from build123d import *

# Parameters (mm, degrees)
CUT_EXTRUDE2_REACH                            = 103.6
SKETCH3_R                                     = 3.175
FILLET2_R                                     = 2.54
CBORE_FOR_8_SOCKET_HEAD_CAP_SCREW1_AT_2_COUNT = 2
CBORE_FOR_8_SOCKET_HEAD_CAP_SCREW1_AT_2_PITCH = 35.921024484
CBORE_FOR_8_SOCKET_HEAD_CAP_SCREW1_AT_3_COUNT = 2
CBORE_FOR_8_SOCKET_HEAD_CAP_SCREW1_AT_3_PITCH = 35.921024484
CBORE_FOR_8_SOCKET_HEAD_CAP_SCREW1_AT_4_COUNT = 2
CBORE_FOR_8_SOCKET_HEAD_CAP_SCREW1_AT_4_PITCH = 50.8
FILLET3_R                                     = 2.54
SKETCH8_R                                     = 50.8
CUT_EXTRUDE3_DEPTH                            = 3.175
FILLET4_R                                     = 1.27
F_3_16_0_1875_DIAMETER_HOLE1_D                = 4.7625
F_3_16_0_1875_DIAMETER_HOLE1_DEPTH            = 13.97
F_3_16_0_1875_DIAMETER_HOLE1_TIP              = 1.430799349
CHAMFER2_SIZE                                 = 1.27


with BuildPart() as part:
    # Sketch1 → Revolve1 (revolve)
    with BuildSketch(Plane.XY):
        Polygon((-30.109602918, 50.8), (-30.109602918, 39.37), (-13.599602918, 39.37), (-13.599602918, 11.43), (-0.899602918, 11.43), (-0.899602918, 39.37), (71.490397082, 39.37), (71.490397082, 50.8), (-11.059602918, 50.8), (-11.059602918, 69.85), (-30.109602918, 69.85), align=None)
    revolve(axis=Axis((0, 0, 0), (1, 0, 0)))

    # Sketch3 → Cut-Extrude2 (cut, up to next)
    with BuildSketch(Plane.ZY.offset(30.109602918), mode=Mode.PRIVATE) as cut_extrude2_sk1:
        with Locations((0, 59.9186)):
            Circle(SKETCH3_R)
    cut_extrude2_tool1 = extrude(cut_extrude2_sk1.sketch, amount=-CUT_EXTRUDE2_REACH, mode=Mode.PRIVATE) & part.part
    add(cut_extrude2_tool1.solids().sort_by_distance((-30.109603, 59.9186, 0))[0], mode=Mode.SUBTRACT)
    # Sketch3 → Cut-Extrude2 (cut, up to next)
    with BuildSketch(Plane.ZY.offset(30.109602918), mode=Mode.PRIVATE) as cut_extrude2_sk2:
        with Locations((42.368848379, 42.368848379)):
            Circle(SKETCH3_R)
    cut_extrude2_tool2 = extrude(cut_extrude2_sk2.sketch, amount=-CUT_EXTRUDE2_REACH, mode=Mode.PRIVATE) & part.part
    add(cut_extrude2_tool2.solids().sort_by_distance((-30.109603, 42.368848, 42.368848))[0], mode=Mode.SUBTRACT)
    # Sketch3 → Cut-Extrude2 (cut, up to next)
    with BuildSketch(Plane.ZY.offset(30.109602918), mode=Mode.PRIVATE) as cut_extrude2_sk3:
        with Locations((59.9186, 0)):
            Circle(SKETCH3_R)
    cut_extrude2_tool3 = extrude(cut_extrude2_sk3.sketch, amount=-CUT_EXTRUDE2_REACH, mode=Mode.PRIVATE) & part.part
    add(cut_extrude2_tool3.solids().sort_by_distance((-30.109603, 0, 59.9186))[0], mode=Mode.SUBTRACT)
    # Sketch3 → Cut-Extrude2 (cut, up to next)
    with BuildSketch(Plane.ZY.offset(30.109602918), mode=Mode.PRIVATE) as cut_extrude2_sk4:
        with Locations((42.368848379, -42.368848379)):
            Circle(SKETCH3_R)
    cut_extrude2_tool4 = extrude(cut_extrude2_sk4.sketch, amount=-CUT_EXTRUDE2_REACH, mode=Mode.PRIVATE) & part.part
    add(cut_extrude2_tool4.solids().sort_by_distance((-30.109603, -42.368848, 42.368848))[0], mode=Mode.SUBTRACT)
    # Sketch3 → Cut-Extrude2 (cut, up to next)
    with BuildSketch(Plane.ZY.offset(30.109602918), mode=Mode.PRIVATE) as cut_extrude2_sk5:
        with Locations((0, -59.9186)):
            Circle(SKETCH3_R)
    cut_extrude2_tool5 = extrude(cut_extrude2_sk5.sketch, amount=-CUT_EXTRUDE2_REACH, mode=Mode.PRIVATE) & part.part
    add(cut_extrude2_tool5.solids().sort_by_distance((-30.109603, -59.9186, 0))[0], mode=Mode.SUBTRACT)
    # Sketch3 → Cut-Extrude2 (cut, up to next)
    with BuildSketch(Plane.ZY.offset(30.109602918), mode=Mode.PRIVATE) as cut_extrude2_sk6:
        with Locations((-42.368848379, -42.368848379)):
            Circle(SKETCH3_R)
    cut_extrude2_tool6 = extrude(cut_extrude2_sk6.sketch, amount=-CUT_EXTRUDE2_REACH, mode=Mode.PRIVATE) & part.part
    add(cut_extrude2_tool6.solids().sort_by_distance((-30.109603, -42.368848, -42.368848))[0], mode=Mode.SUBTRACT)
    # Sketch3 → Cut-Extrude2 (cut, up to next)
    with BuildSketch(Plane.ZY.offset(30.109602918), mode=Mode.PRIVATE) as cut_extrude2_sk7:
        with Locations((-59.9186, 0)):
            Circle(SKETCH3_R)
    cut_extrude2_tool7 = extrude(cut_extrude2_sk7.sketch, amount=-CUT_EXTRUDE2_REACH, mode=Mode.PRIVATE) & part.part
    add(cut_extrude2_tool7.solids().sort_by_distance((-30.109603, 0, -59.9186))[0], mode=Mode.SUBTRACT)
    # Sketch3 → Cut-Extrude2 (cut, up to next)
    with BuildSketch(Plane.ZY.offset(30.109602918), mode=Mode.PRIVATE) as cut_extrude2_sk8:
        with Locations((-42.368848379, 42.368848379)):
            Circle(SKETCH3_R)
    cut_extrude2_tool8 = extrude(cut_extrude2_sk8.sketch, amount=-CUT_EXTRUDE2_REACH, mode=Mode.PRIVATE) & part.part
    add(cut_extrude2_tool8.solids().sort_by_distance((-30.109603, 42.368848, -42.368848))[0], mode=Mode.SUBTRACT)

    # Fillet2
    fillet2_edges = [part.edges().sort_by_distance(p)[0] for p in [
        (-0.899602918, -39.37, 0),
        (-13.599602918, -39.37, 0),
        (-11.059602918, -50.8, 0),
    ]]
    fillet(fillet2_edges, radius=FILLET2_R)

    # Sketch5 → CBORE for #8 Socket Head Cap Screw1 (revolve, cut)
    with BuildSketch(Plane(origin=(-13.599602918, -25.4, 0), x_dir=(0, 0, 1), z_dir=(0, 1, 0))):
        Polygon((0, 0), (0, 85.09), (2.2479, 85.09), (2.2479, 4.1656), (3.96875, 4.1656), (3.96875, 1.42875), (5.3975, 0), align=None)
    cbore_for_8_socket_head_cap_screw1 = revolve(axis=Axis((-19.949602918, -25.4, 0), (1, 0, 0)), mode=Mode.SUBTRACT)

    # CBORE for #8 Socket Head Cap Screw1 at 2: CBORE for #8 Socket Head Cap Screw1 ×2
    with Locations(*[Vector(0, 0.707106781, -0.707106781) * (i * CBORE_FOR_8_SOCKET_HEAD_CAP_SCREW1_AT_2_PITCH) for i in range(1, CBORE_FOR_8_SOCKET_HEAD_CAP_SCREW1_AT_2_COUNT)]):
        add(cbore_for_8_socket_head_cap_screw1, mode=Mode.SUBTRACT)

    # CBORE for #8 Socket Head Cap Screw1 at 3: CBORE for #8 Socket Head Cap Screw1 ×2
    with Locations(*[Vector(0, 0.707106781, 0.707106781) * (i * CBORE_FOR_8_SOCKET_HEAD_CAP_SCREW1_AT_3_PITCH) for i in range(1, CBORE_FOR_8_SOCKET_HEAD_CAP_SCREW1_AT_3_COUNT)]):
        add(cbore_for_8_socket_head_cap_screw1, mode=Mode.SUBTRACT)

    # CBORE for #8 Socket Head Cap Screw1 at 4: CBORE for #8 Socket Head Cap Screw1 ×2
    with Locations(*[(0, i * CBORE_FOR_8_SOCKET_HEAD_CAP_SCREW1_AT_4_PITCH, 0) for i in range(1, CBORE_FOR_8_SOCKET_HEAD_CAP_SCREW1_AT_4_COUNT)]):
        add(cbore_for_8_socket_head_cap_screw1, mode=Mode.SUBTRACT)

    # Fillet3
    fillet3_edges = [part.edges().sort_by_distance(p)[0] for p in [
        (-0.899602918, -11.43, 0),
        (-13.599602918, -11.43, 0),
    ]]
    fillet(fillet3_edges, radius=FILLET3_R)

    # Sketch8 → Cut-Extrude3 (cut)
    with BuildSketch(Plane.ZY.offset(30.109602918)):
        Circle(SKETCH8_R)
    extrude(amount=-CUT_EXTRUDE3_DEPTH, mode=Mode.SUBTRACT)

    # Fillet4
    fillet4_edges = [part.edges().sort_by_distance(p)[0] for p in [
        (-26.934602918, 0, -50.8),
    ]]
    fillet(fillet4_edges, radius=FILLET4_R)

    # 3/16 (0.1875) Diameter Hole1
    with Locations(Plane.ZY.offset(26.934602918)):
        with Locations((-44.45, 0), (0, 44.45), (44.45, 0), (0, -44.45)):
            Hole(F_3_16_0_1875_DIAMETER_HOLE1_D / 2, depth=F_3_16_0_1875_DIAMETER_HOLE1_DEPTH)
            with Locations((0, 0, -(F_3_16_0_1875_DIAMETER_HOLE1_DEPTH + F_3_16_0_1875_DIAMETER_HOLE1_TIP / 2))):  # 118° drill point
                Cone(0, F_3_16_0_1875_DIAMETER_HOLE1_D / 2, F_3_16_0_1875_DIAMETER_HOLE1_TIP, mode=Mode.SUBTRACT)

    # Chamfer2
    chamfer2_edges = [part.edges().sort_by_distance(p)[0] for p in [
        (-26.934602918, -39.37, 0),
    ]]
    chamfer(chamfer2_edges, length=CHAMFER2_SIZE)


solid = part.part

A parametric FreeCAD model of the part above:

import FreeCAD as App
import Part
import Sketcher
Q = App.Units.Quantity


def edges_at(feature, points):
    """Names of the edges that pass closest to the given points."""
    edges = feature.Shape.Edges
    near = lambda p: min(range(len(edges)), key=lambda i: edges[i].distToShape(Part.Vertex(*p))[0])
    return sorted({f"Edge{near(p) + 1}" for p in points})

doc = App.newDocument("Part")
body = doc.addObject("PartDesign::Body", "Body")

# Sketch on XY plane
sketch1 = doc.addObject("Sketcher::SketchObject", "Sketch")
body.addObject(sketch1)
sketch1.AttachmentSupport = (doc.XY_Plane, [""])
sketch1.MapMode = "FlatFace"
sketch1.addGeometry([
    Part.LineSegment(App.Vector(-30.109603, 39.37, 0), App.Vector(-13.599603, 39.37, 0)),  # 0
    Part.LineSegment(App.Vector(-13.599603, 39.37, 0), App.Vector(-13.599603, 11.43, 0)),  # 1
    Part.LineSegment(App.Vector(-13.599603, 11.43, 0), App.Vector(-0.899603, 11.43, 0)),  # 2
    Part.LineSegment(App.Vector(-0.899603, 11.43, 0), App.Vector(-0.899603, 39.37, 0)),  # 3
    Part.LineSegment(App.Vector(-0.899603, 39.37, 0), App.Vector(71.490397, 39.37, 0)),  # 4
    Part.LineSegment(App.Vector(71.490397, 39.37, 0), App.Vector(71.490397, 50.8, 0)),  # 5
    Part.LineSegment(App.Vector(71.490397, 50.8, 0), App.Vector(-11.059603, 50.8, 0)),  # 6
    Part.LineSegment(App.Vector(-11.059603, 50.8, 0), App.Vector(-11.059603, 69.85, 0)),  # 7
    Part.LineSegment(App.Vector(-11.059603, 69.85, 0), App.Vector(-30.109603, 69.85, 0)),  # 8
    Part.LineSegment(App.Vector(-30.109603, 69.85, 0), App.Vector(-30.109603, 39.37, 0)),  # 9
], False)
sketch1.addConstraint([
    Sketcher.Constraint("Coincident", 0, 2, 1, 1),
    Sketcher.Constraint("Coincident", 1, 2, 2, 1),
    Sketcher.Constraint("Coincident", 2, 2, 3, 1),
    Sketcher.Constraint("Coincident", 3, 2, 4, 1),
    Sketcher.Constraint("Coincident", 4, 2, 5, 1),
    Sketcher.Constraint("Coincident", 5, 2, 6, 1),
    Sketcher.Constraint("Coincident", 6, 2, 7, 1),
    Sketcher.Constraint("Coincident", 7, 2, 8, 1),
    Sketcher.Constraint("Coincident", 8, 2, 9, 1),
    Sketcher.Constraint("Coincident", 9, 2, 0, 1),
    Sketcher.Constraint("Horizontal", 0),
    Sketcher.Constraint("Vertical", 1),
    Sketcher.Constraint("Horizontal", 2),
    Sketcher.Constraint("Vertical", 3),
    Sketcher.Constraint("Horizontal", 4),
    Sketcher.Constraint("Vertical", 5),
    Sketcher.Constraint("Horizontal", 6),
    Sketcher.Constraint("Vertical", 7),
    Sketcher.Constraint("Horizontal", 8),
    Sketcher.Constraint("Vertical", 9),
    Sketcher.Constraint("Horizontal", 0, 2, 3, 2),
    Sketcher.Constraint("Equal", 8, 7),
    Sketcher.Constraint("DistanceX", 2, 1, 2, 2, Q("0.5 in")),
    Sketcher.Constraint("DistanceY", 1, 2, 1, 1, Q("1.1 in")),
    Sketcher.Constraint("DistanceY", 9, 2, 9, 1, Q("1.2 in")),
    Sketcher.Constraint("DistanceY", -1, 1, 5, 2, Q("2 in")),
    Sketcher.Constraint("DistanceX", 0, 1, 0, 2, Q("0.65 in")),
    Sketcher.Constraint("DistanceX", 4, 1, 4, 2, Q("2.85 in")),
    Sketcher.Constraint("DistanceX", 6, 2, 6, 1, Q("3.25 in")),
    Sketcher.Constraint("DistanceX", 0, 2, -1, 1, Q("13.599603 mm")),
])
revolution = doc.addObject("PartDesign::Revolution", "Revolution")
body.addObject(revolution)
revolution.Profile = sketch1
revolution.ReferenceAxis = (sketch1, ["H_Axis"])
revolution.Angle = 360

# Sketch on YZ plane
sketch2 = doc.addObject("Sketcher::SketchObject", "Sketch001")
body.addObject(sketch2)
sketch2.AttachmentSupport = (doc.YZ_Plane, [""])
sketch2.MapMode = "FlatFace"
sketch2.AttachmentOffset = App.Placement(App.Vector(0, 0, -30.109603), App.Rotation())
sketch2.addGeometry(Part.Circle(App.Vector(59.9186, 0, 0), App.Vector(0, 0, 1), 3.175), False)
sketch2.addConstraint([
    Sketcher.Constraint("PointOnObject", 0, 3, -1),
    Sketcher.Constraint("Diameter", 0, Q("0.25 in")),
    Sketcher.Constraint("DistanceX", -1, 1, 0, 3, Q("2.359 in")),
])
pocket1 = doc.addObject("PartDesign::Pocket", "Pocket")
body.addObject(pocket1)
pocket1.Profile = sketch2
pocket1.Type = "UpToFirst"
pocket1.Reversed = True

# Sketch on YZ plane
sketch3 = doc.addObject("Sketcher::SketchObject", "Sketch002")
body.addObject(sketch3)
sketch3.AttachmentSupport = (doc.YZ_Plane, [""])
sketch3.MapMode = "FlatFace"
sketch3.AttachmentOffset = App.Placement(App.Vector(0, 0, -30.109603), App.Rotation())
sketch3.addGeometry(Part.Circle(App.Vector(42.368848, 42.368848, 0), App.Vector(0, 0, 1), 3.175), False)
sketch3.addConstraint([
    Sketcher.Constraint("Diameter", 0, Q("0.25 in")),
    Sketcher.Constraint("DistanceX", -1, 1, 0, 3, Q("42.368848 mm")),
    Sketcher.Constraint("DistanceY", -1, 1, 0, 3, Q("42.368848 mm")),
])
pocket2 = doc.addObject("PartDesign::Pocket", "Pocket001")
body.addObject(pocket2)
pocket2.Profile = sketch3
pocket2.Type = "UpToFirst"
pocket2.Reversed = True

# Sketch on YZ plane
sketch4 = doc.addObject("Sketcher::SketchObject", "Sketch003")
body.addObject(sketch4)
sketch4.AttachmentSupport = (doc.YZ_Plane, [""])
sketch4.MapMode = "FlatFace"
sketch4.AttachmentOffset = App.Placement(App.Vector(0, 0, -30.109603), App.Rotation())
sketch4.addGeometry(Part.Circle(App.Vector(0, 59.9186, 0), App.Vector(0, 0, 1), 3.175), False)
sketch4.addConstraint([
    Sketcher.Constraint("PointOnObject", 0, 3, -2),
    Sketcher.Constraint("Diameter", 0, Q("0.25 in")),
    Sketcher.Constraint("DistanceY", -1, 1, 0, 3, Q("2.359 in")),
])
pocket3 = doc.addObject("PartDesign::Pocket", "Pocket002")
body.addObject(pocket3)
pocket3.Profile = sketch4
pocket3.Type = "UpToFirst"
pocket3.Reversed = True

# Sketch on YZ plane
sketch5 = doc.addObject("Sketcher::SketchObject", "Sketch004")
body.addObject(sketch5)
sketch5.AttachmentSupport = (doc.YZ_Plane, [""])
sketch5.MapMode = "FlatFace"
sketch5.AttachmentOffset = App.Placement(App.Vector(0, 0, -30.109603), App.Rotation())
sketch5.addGeometry(Part.Circle(App.Vector(-42.368848, 42.368848, 0), App.Vector(0, 0, 1), 3.175), False)
sketch5.addConstraint([
    Sketcher.Constraint("Diameter", 0, Q("0.25 in")),
    Sketcher.Constraint("DistanceX", 0, 3, -1, 1, Q("42.368848 mm")),
    Sketcher.Constraint("DistanceY", -1, 1, 0, 3, Q("42.368848 mm")),
])
pocket4 = doc.addObject("PartDesign::Pocket", "Pocket003")
body.addObject(pocket4)
pocket4.Profile = sketch5
pocket4.Type = "UpToFirst"
pocket4.Reversed = True

# Sketch on YZ plane
sketch6 = doc.addObject("Sketcher::SketchObject", "Sketch005")
body.addObject(sketch6)
sketch6.AttachmentSupport = (doc.YZ_Plane, [""])
sketch6.MapMode = "FlatFace"
sketch6.AttachmentOffset = App.Placement(App.Vector(0, 0, -30.109603), App.Rotation())
sketch6.addGeometry(Part.Circle(App.Vector(-59.9186, 0, 0), App.Vector(0, 0, 1), 3.175), False)
sketch6.addConstraint([
    Sketcher.Constraint("PointOnObject", 0, 3, -1),
    Sketcher.Constraint("Diameter", 0, Q("0.25 in")),
    Sketcher.Constraint("DistanceX", 0, 3, -1, 1, Q("2.359 in")),
])
pocket5 = doc.addObject("PartDesign::Pocket", "Pocket004")
body.addObject(pocket5)
pocket5.Profile = sketch6
pocket5.Type = "UpToFirst"
pocket5.Reversed = True

# Sketch on YZ plane
sketch7 = doc.addObject("Sketcher::SketchObject", "Sketch006")
body.addObject(sketch7)
sketch7.AttachmentSupport = (doc.YZ_Plane, [""])
sketch7.MapMode = "FlatFace"
sketch7.AttachmentOffset = App.Placement(App.Vector(0, 0, -30.109603), App.Rotation())
sketch7.addGeometry(Part.Circle(App.Vector(-42.368848, -42.368848, 0), App.Vector(0, 0, 1), 3.175), False)
sketch7.addConstraint([
    Sketcher.Constraint("Diameter", 0, Q("0.25 in")),
    Sketcher.Constraint("DistanceX", 0, 3, -1, 1, Q("42.368848 mm")),
    Sketcher.Constraint("DistanceY", 0, 3, -1, 1, Q("42.368848 mm")),
])
pocket6 = doc.addObject("PartDesign::Pocket", "Pocket005")
body.addObject(pocket6)
pocket6.Profile = sketch7
pocket6.Type = "UpToFirst"
pocket6.Reversed = True

# Sketch on YZ plane
sketch8 = doc.addObject("Sketcher::SketchObject", "Sketch007")
body.addObject(sketch8)
sketch8.AttachmentSupport = (doc.YZ_Plane, [""])
sketch8.MapMode = "FlatFace"
sketch8.AttachmentOffset = App.Placement(App.Vector(0, 0, -30.109603), App.Rotation())
sketch8.addGeometry(Part.Circle(App.Vector(0, -59.9186, 0), App.Vector(0, 0, 1), 3.175), False)
sketch8.addConstraint([
    Sketcher.Constraint("PointOnObject", 0, 3, -2),
    Sketcher.Constraint("Diameter", 0, Q("0.25 in")),
    Sketcher.Constraint("DistanceY", 0, 3, -1, 1, Q("2.359 in")),
])
pocket7 = doc.addObject("PartDesign::Pocket", "Pocket006")
body.addObject(pocket7)
pocket7.Profile = sketch8
pocket7.Type = "UpToFirst"
pocket7.Reversed = True

# Sketch on YZ plane
sketch9 = doc.addObject("Sketcher::SketchObject", "Sketch008")
body.addObject(sketch9)
sketch9.AttachmentSupport = (doc.YZ_Plane, [""])
sketch9.MapMode = "FlatFace"
sketch9.AttachmentOffset = App.Placement(App.Vector(0, 0, -30.109603), App.Rotation())
sketch9.addGeometry(Part.Circle(App.Vector(42.368848, -42.368848, 0), App.Vector(0, 0, 1), 3.175), False)
sketch9.addConstraint([
    Sketcher.Constraint("Diameter", 0, Q("0.25 in")),
    Sketcher.Constraint("DistanceX", -1, 1, 0, 3, Q("42.368848 mm")),
    Sketcher.Constraint("DistanceY", 0, 3, -1, 1, Q("42.368848 mm")),
])
pocket8 = doc.addObject("PartDesign::Pocket", "Pocket007")
body.addObject(pocket8)
pocket8.Profile = sketch9
pocket8.Type = "UpToFirst"
pocket8.Reversed = True
doc.recompute()

fillet = doc.addObject("PartDesign::Fillet", "Fillet")
body.addObject(fillet)
fillet.Base = (pocket8, edges_at(pocket8, [(-0.9, -39.37, 0), (-13.6, -39.37, 0), (-11.06, -50.8, 0)]))
fillet.Radius = Q("0.1 in")

# Sketch on XZ plane
sketch10 = doc.addObject("Sketcher::SketchObject", "Sketch009")
body.addObject(sketch10)
sketch10.AttachmentSupport = (doc.XZ_Plane, [""])
sketch10.MapMode = "FlatFace"
sketch10.AttachmentOffset = App.Placement(App.Vector(0, 0, 1 * 25.4), App.Rotation())
sketch10.addGeometry([
    Part.LineSegment(App.Vector(71.490397, 0, 0), App.Vector(-13.599603, 0, 0)),  # 0
    Part.LineSegment(App.Vector(-13.599603, 0, 0), App.Vector(-13.599603, 5.3975, 0)),  # 1
    Part.LineSegment(App.Vector(-13.599603, 5.3975, 0), App.Vector(-12.170853, 3.96875, 0)),  # 2
    Part.LineSegment(App.Vector(-12.170853, 3.96875, 0), App.Vector(-9.434003, 3.96875, 0)),  # 3
    Part.LineSegment(App.Vector(-9.434003, 3.96875, 0), App.Vector(-9.434003, 2.2479, 0)),  # 4
    Part.LineSegment(App.Vector(-9.434003, 2.2479, 0), App.Vector(71.490397, 2.2479, 0)),  # 5
    Part.LineSegment(App.Vector(71.490397, 2.2479, 0), App.Vector(71.490397, 0, 0)),  # 6
], False)
sketch10.addConstraint([
    Sketcher.Constraint("Coincident", 0, 2, 1, 1),
    Sketcher.Constraint("Coincident", 1, 2, 2, 1),
    Sketcher.Constraint("Coincident", 2, 2, 3, 1),
    Sketcher.Constraint("Coincident", 3, 2, 4, 1),
    Sketcher.Constraint("Coincident", 4, 2, 5, 1),
    Sketcher.Constraint("Coincident", 5, 2, 6, 1),
    Sketcher.Constraint("Coincident", 6, 2, 0, 1),
    Sketcher.Constraint("Horizontal", 0),
    Sketcher.Constraint("Vertical", 1),
    Sketcher.Constraint("Horizontal", 3),
    Sketcher.Constraint("Vertical", 4),
    Sketcher.Constraint("Horizontal", 5),
    Sketcher.Constraint("Vertical", 6),
    Sketcher.Constraint("PointOnObject", 0, 2, -1),
    Sketcher.Constraint("Angle", 2, Q("-45 deg")),
    Sketcher.Constraint("DistanceX", 0, 2, 0, 1, Q("3.35 in")),
    Sketcher.Constraint("DistanceX", 5, 1, 5, 2, Q("3.186 in")),
    Sketcher.Constraint("DistanceY", 1, 1, 1, 2, Q("0.2125 in")),
    Sketcher.Constraint("DistanceY", 6, 2, 6, 1, Q("0.0885 in")),
    Sketcher.Constraint("DistanceY", -1, 1, 2, 2, Q("0.15625 in")),
    Sketcher.Constraint("DistanceX", 0, 2, -1, 1, Q("13.599603 mm")),
])
groove = doc.addObject("PartDesign::Groove", "Groove")
body.addObject(groove)
groove.Profile = sketch10
groove.ReferenceAxis = (sketch10, ["H_Axis"])
groove.Angle = 360
doc.recompute()

datumline = doc.addObject("PartDesign::Line", "DatumLine")
body.addObject(datumline)
datumline.Placement = App.Placement(App.Vector(0, 0, 0), App.Rotation(App.Vector(0, 0, 1), App.Vector(0, 0.707106781, -0.707106781)))
linearpattern = doc.addObject("PartDesign::LinearPattern", "LinearPattern")
body.addObject(linearpattern)
linearpattern.Originals = [groove]
linearpattern.Direction = (datumline, [""])
linearpattern.Mode = "offset"
linearpattern.Offset = 35.921024
linearpattern.Occurrences = 2
body.Tip = linearpattern
doc.recompute()

datumline2 = doc.addObject("PartDesign::Line", "DatumLine001")
body.addObject(datumline2)
datumline2.Placement = App.Placement(App.Vector(0, 0, 0), App.Rotation(App.Vector(0, 0, 1), App.Vector(0, 0.707106781, 0.707106781)))
linearpattern2 = doc.addObject("PartDesign::LinearPattern", "LinearPattern001")
body.addObject(linearpattern2)
linearpattern2.Originals = [groove]
linearpattern2.Direction = (datumline2, [""])
linearpattern2.Mode = "offset"
linearpattern2.Offset = 35.921024
linearpattern2.Occurrences = 2
body.Tip = linearpattern2
doc.recompute()

linearpattern3 = doc.addObject("PartDesign::LinearPattern", "LinearPattern002")
body.addObject(linearpattern3)
linearpattern3.Originals = [groove]
linearpattern3.Direction = (doc.Y_Axis, [""])
linearpattern3.Mode = "offset"
linearpattern3.Offset = Q("2 in")
linearpattern3.Occurrences = 2
body.Tip = linearpattern3
doc.recompute()

fillet2 = doc.addObject("PartDesign::Fillet", "Fillet001")
body.addObject(fillet2)
fillet2.Base = (linearpattern3, edges_at(linearpattern3, [(-0.9, -11.43, 0), (-13.6, -11.43, 0)]))
fillet2.Radius = Q("0.1 in")

# Sketch on YZ plane
sketch11 = doc.addObject("Sketcher::SketchObject", "Sketch010")
body.addObject(sketch11)
sketch11.AttachmentSupport = (doc.YZ_Plane, [""])
sketch11.MapMode = "FlatFace"
sketch11.AttachmentOffset = App.Placement(App.Vector(0, 0, -30.109603), App.Rotation())
sketch11.addGeometry(Part.Circle(App.Vector(0, 0, 0), App.Vector(0, 0, 1), 50.8), False)
sketch11.addConstraint([
    Sketcher.Constraint("Coincident", 0, 3, -1, 1),
    Sketcher.Constraint("Diameter", 0, Q("4 in")),
])
pocket9 = doc.addObject("PartDesign::Pocket", "Pocket008")
body.addObject(pocket9)
pocket9.Profile = sketch11
pocket9.Length = Q("0.125 in")
pocket9.Reversed = True
doc.recompute()

fillet3 = doc.addObject("PartDesign::Fillet", "Fillet002")
body.addObject(fillet3)
fillet3.Base = (pocket9, edges_at(pocket9, [(-26.935, 0, -50.8)]))
fillet3.Radius = Q("0.05 in")

# Sketch on YZ plane
sketch12 = doc.addObject("Sketcher::SketchObject", "Sketch011")
body.addObject(sketch12)
sketch12.AttachmentSupport = (doc.YZ_Plane, [""])
sketch12.MapMode = "FlatFace"
sketch12.AttachmentOffset = App.Placement(App.Vector(0, 0, -26.934603), App.Rotation())
sketch12.addGeometry([
    Part.Circle(App.Vector(0, -44.45, 0), App.Vector(0, 0, 1), 2.38125),
    Part.Circle(App.Vector(44.45, 0, 0), App.Vector(0, 0, 1), 2.38125),
    Part.Circle(App.Vector(0, 44.45, 0), App.Vector(0, 0, 1), 2.38125),
    Part.Circle(App.Vector(-44.45, 0, 0), App.Vector(0, 0, 1), 2.38125),
], False)
sketch12.addConstraint([
    Sketcher.Constraint("Equal", 0, 1),
    Sketcher.Constraint("Equal", 1, 2),
    Sketcher.Constraint("Equal", 2, 3),
    Sketcher.Constraint("Symmetric", 0, 3, 2, 3, -1, 1),
    Sketcher.Constraint("Symmetric", 1, 3, 3, 3, -1, 1),
    Sketcher.Constraint("PointOnObject", 0, 3, -2),
    Sketcher.Constraint("PointOnObject", 1, 3, -1),
    Sketcher.Constraint("Diameter", 0, Q("0.1875 in")),
    Sketcher.Constraint("DistanceY", 0, 3, 2, 3, Q("3.5 in")),
    Sketcher.Constraint("DistanceX", 3, 3, 1, 3, Q("3.5 in")),
])
doc.recompute()
hole = doc.addObject("PartDesign::Hole", "Hole")
body.addObject(hole)
hole.Profile = sketch12
hole.ThreadType = "None"
hole.Diameter = Q("0.1875 in")
hole.DepthType = "Dimension"
hole.Depth = Q("0.55 in")
hole.DrillPoint = "Angled"
hole.DrillPointAngle = 118
hole.Reversed = True
doc.recompute()

chamfer = doc.addObject("PartDesign::Chamfer", "Chamfer")
body.addObject(chamfer)
chamfer.Base = (hole, edges_at(hole, [(-26.935, -39.37, 0)]))
chamfer.Size = Q("0.05 in")

doc.recompute()
